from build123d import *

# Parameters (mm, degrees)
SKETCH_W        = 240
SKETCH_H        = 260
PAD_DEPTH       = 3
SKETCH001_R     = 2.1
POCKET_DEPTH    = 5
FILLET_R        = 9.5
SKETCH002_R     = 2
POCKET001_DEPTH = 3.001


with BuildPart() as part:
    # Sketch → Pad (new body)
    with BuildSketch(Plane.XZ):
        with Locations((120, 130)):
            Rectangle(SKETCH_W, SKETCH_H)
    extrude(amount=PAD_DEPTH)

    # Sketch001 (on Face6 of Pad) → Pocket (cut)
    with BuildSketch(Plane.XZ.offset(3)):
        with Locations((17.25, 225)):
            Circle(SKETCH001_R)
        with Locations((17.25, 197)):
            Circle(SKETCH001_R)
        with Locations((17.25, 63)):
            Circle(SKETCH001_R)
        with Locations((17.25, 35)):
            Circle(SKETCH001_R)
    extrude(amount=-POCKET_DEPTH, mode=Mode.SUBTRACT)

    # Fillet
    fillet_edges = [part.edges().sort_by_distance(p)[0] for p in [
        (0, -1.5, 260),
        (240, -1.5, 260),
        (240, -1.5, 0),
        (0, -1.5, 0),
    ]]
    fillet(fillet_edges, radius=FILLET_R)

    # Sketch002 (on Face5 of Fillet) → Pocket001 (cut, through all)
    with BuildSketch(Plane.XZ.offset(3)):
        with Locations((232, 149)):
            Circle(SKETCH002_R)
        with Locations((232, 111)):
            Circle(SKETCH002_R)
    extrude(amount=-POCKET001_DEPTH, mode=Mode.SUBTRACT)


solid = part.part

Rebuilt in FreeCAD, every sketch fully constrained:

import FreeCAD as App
import Part
import Sketcher


def edges_at(feature, points):
    """Names of the edges that pass closest to the given points."""
    edges = feature.Shape.Edges
    near = lambda p: min(range(len(edges)), key=lambda i: edges[i].distToShape(Part.Vertex(*p))[0])
    return sorted({f"Edge{near(p) + 1}" for p in points})

doc = App.newDocument("Part")
body = doc.addObject("PartDesign::Body", "Body")

# Sketch on XZ plane
sketch1 = doc.addObject("Sketcher::SketchObject", "Sketch")
body.addObject(sketch1)
sketch1.AttachmentSupport = (doc.XZ_Plane, [""])
sketch1.MapMode = "FlatFace"
sketch1.addGeometry([
    Part.LineSegment(App.Vector(0, 260, 0), App.Vector(0, 0, 0)),
    Part.LineSegment(App.Vector(0, 0, 0), App.Vector(240, 0, 0)),
    Part.LineSegment(App.Vector(240, 0, 0), App.Vector(240, 260, 0)),
    Part.LineSegment(App.Vector(240, 260, 0), App.Vector(0, 260, 0)),
], False)
sketch1.addConstraint([
    Sketcher.Constraint("Coincident", 0, 2, 1, 1),
    Sketcher.Constraint("Coincident", 1, 2, 2, 1),
    Sketcher.Constraint("Coincident", 2, 2, 3, 1),
    Sketcher.Constraint("Coincident", 3, 2, 0, 1),
    Sketcher.Constraint("Vertical", 0),
    Sketcher.Constraint("Horizontal", 1),
    Sketcher.Constraint("Vertical", 2),
    Sketcher.Constraint("Horizontal", 3),
    Sketcher.Constraint("Coincident", 0, 2, -1, 1),
    Sketcher.Constraint("DistanceX", 1, 1, 1, 2, 240.0),
    Sketcher.Constraint("DistanceY", 0, 2, 0, 1, 260.0),
])
pad1 = doc.addObject("PartDesign::Pad", "Pad")
body.addObject(pad1)
pad1.Profile = sketch1
pad1.Length = 3

# Sketch on XZ plane
sketch2 = doc.addObject("Sketcher::SketchObject", "Sketch001")
body.addObject(sketch2)
sketch2.AttachmentSupport = (doc.XZ_Plane, [""])
sketch2.MapMode = "FlatFace"
sketch2.AttachmentOffset = App.Placement(App.Vector(0, 0, 3), App.Rotation())
sketch2.addGeometry([
    Part.Circle(App.Vector(17.25, 225, 0), App.Vector(0, 0, 1), 2.1),
    Part.Circle(App.Vector(17.25, 197, 0), App.Vector(0, 0, 1), 2.1),
    Part.Circle(App.Vector(17.25, 63, 0), App.Vector(0, 0, 1), 2.1),
    Part.Circle(App.Vector(17.25, 35, 0), App.Vector(0, 0, 1), 2.1),
], False)
sketch2.addConstraint([
    Sketcher.Constraint("Equal", 0, 1),
    Sketcher.Constraint("Equal", 1, 2),
    Sketcher.Constraint("Equal", 2, 3),
    Sketcher.Constraint("Vertical", 0, 3, 1, 3),
    Sketcher.Constraint("Vertical", 1, 3, 2, 3),
    Sketcher.Constraint("Vertical", 2, 3, 3, 3),
    Sketcher.Constraint("Diameter", 0, 4.2),
    Sketcher.Constraint("DistanceY", -1, 1, 0, 3, 225.0),
    Sketcher.Constraint("DistanceY", -1, 1, 1, 3, 197.0),
    Sketcher.Constraint("DistanceY", -1, 1, 2, 3, 63.0),
    Sketcher.Constraint("DistanceY", -1, 1, 3, 3, 35.0),
    Sketcher.Constraint("DistanceX", -1, 1, 0, 3, 17.25),
])
pocket1 = doc.addObject("PartDesign::Pocket", "Pocket")
body.addObject(pocket1)
pocket1.Profile = sketch2
pocket1.Length = 5
doc.recompute()

fillet = doc.addObject("PartDesign::Fillet", "Fillet")
body.addObject(fillet)
fillet.Base = (pocket1, edges_at(pocket1, [
    (0, -1.5, 260),
    (240, -1.5, 260),
    (240, -1.5, 0),
    (0, -1.5, 0),
]))
fillet.Radius = 9.5

# Sketch on XZ plane
sketch3 = doc.addObject("Sketcher::SketchObject", "Sketch002")
body.addObject(sketch3)
sketch3.AttachmentSupport = (doc.XZ_Plane, [""])
sketch3.MapMode = "FlatFace"
sketch3.AttachmentOffset = App.Placement(App.Vector(0, 0, 3), App.Rotation())
sketch3.addGeometry([
    Part.Circle(App.Vector(232, 149, 0), App.Vector(0, 0, 1), 2),
    Part.Circle(App.Vector(232, 111, 0), App.Vector(0, 0, 1), 2),
], False)
sketch3.addConstraint([
    Sketcher.Constraint("Equal", 0, 1),
    Sketcher.Constraint("Vertical", 0, 3, 1, 3),
    Sketcher.Constraint("Diameter", 0, 4.0),
    Sketcher.Constraint("DistanceX", -1, 1, 0, 3, 232.0),
    Sketcher.Constraint("DistanceY", -1, 1, 0, 3, 149.0),
    Sketcher.Constraint("DistanceY", -1, 1, 1, 3, 111.0),
])
pocket2 = doc.addObject("PartDesign::Pocket", "Pocket001")
body.addObject(pocket2)
pocket2.Profile = sketch3
pocket2.Type = "ThroughAll"

doc.recompute()
